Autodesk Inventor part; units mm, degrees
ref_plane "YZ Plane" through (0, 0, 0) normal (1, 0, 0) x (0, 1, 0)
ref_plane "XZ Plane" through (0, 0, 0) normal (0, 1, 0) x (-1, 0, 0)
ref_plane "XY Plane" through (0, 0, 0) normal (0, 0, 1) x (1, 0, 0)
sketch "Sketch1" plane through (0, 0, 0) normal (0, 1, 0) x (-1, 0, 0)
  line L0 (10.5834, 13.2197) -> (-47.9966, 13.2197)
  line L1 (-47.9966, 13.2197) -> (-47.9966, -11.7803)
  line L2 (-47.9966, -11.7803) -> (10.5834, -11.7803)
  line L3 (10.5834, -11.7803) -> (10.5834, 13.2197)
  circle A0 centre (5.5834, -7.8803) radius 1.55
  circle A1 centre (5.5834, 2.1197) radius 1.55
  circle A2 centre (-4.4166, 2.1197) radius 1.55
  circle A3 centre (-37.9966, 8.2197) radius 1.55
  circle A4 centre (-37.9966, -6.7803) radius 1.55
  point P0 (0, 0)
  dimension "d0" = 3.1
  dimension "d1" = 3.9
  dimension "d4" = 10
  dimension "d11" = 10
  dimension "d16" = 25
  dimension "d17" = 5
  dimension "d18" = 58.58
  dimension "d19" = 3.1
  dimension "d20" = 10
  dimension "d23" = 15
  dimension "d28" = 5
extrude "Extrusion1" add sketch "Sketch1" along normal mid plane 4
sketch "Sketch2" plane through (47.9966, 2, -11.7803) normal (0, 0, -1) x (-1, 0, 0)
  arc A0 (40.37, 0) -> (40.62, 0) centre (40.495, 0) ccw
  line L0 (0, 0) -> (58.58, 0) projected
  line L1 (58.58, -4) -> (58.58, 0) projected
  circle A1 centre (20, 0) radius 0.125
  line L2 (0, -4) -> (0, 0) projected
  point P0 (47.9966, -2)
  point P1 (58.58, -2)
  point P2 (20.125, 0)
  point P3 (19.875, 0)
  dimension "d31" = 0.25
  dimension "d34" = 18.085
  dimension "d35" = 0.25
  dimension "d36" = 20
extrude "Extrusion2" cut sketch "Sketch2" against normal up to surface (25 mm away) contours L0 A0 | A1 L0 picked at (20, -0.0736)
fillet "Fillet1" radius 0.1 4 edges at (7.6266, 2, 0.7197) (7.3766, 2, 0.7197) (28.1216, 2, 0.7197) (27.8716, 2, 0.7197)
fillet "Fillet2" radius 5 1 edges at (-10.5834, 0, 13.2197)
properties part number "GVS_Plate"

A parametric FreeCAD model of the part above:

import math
import FreeCAD as App
import Part
import Sketcher
from FreeCAD import Vector


def edges_at(feature, points):
    """Names of the edges that pass closest to the given points."""
    edges = feature.Shape.Edges
    near = lambda p: min(range(len(edges)), key=lambda i: edges[i].distToShape(Part.Vertex(*p))[0])
    return sorted({f"Edge{near(p) + 1}" for p in points})

doc = App.newDocument("Part")
body = doc.addObject("PartDesign::Body", "Body")

sketch1 = body.newObject("Sketcher::SketchObject", "Sketch")
sketch1.AttachmentSupport = (doc.getObject("XZ_Plane"), [""])
sketch1.MapMode = "FlatFace"
sketch1.addGeometry(Part.LineSegment(Vector(-10.6, -11.8, 0), Vector(-10.6, 13.2, 0)), False)
sketch1.addGeometry(Part.LineSegment(Vector(-10.6, 13.2, 0), Vector(48, 13.2, 0)), False)
sketch1.addGeometry(Part.LineSegment(Vector(48, 13.2, 0), Vector(48, -11.8, 0)), False)
sketch1.addGeometry(Part.LineSegment(Vector(48, -11.8, 0), Vector(-10.6, -11.8, 0)), False)
sketch1.addGeometry(Part.Circle(Vector(38, -6.8, 0), Vector(0, 0, 1), 1.6), False)
sketch1.addGeometry(Part.Circle(Vector(-5.6, -7.9, 0), Vector(0, 0, 1), 1.6), False)
sketch1.addGeometry(Part.Circle(Vector(38, 8.2, 0), Vector(0, 0, 1), 1.6), False)
sketch1.addGeometry(Part.Circle(Vector(4.4, 2.1, 0), Vector(0, 0, 1), 1.6), False)
sketch1.addGeometry(Part.Circle(Vector(-5.6, 2.1, 0), Vector(0, 0, 1), 1.6), False)
sketch1.addConstraint(Sketcher.Constraint("Coincident", 0, 2, 1, 1))
sketch1.addConstraint(Sketcher.Constraint("Coincident", 1, 2, 2, 1))
sketch1.addConstraint(Sketcher.Constraint("Coincident", 2, 2, 3, 1))
sketch1.addConstraint(Sketcher.Constraint("Coincident", 3, 2, 0, 1))
sketch1.addConstraint(Sketcher.Constraint("Vertical", 0))
sketch1.addConstraint(Sketcher.Constraint("Horizontal", 1))
sketch1.addConstraint(Sketcher.Constraint("Vertical", 2))
sketch1.addConstraint(Sketcher.Constraint("Horizontal", 3))
sketch1.addConstraint(Sketcher.Constraint("Equal", 4, 5))
sketch1.addConstraint(Sketcher.Constraint("Equal", 5, 6))
sketch1.addConstraint(Sketcher.Constraint("Equal", 6, 7))
sketch1.addConstraint(Sketcher.Constraint("Equal", 7, 8))
sketch1.addConstraint(Sketcher.Constraint("Horizontal", 7, 3, 8, 3))
sketch1.addConstraint(Sketcher.Constraint("Vertical", 4, 3, 6, 3))
sketch1.addConstraint(Sketcher.Constraint("Vertical", 5, 3, 8, 3))
sketch1.addConstraint(Sketcher.Constraint("Diameter", 4, 3.1))
sketch1.addConstraint(Sketcher.Constraint("DistanceY", 0, 1, 0, 2, 25.0))
sketch1.addConstraint(Sketcher.Constraint("DistanceY", 4, 3, 6, 3, 15.0))
sketch1.addConstraint(Sketcher.Constraint("DistanceX", 5, 3, 7, 3, 10.0))
sketch1.addConstraint(Sketcher.Constraint("DistanceY", 5, 3, 7, 3, 10.0))
sketch1.addConstraint(Sketcher.Constraint("DistanceX", 0, 2, 8, 3, 5.0))
sketch1.addConstraint(Sketcher.Constraint("DistanceY", 6, 3, 0, 2, 5.0))
sketch1.addConstraint(Sketcher.Constraint("DistanceX", 6, 3, 1, 2, 10.0))
sketch1.addConstraint(Sketcher.Constraint("DistanceX", 1, 1, 1, 2, 58.58))
sketch1.addConstraint(Sketcher.Constraint("DistanceY", 2, 2, 5, 3, 3.9))
sketch1.addConstraint(Sketcher.Constraint("DistanceX", -1, 1, 4, 3, 37.9966))
sketch1.addConstraint(Sketcher.Constraint("DistanceY", 4, 3, -1, 1, 6.7803))
pad1 = body.newObject("PartDesign::Pad", "Pad")
pad1.Profile = sketch1
pad1.Length = 4
pad1.Midplane = True

sketch2 = body.newObject("Sketcher::SketchObject", "Sketch001")
sketch2.AttachmentSupport = (doc.getObject("XY_Plane"), [""])
sketch2.MapMode = "FlatFace"
sketch2.AttachmentOffset = App.Placement(Vector(0, 0, -11.7803), App.Rotation())
sketch2.addGeometry(Part.LineSegment(Vector(7.38, 2, 0), Vector(7.63, 2, 0)), False)
sketch2.addGeometry(Part.ArcOfCircle(Part.Circle(Vector(7.5, 2, 0), Vector(0, 0, 1), 0.12), math.radians(180), math.radians(360)), False)
sketch2.addGeometry(Part.ArcOfCircle(Part.Circle(Vector(28, 2, 0), Vector(0, 0, 1), 0.12), math.radians(180), math.radians(360)), False)
sketch2.addGeometry(Part.LineSegment(Vector(27.87, 2, 0), Vector(28.12, 2, 0)), False)
sketch2.addConstraint(Sketcher.Constraint("Coincident", 0, 1, 1, 1))
sketch2.addConstraint(Sketcher.Constraint("Coincident", 1, 2, 0, 2))
sketch2.addConstraint(Sketcher.Constraint("Coincident", 2, 1, 3, 1))
sketch2.addConstraint(Sketcher.Constraint("Coincident", 3, 2, 2, 2))
sketch2.addConstraint(Sketcher.Constraint("Horizontal", 0))
sketch2.addConstraint(Sketcher.Constraint("Horizontal", 3))
sketch2.addConstraint(Sketcher.Constraint("Equal", 1, 2))
sketch2.addConstraint(Sketcher.Constraint("Horizontal", 1, 3, 2, 3))
sketch2.addConstraint(Sketcher.Constraint("Horizontal", 2, 3, 0, 1))
sketch2.addConstraint(Sketcher.Constraint("Horizontal", 1, 2, 2, 1))
sketch2.addConstraint(Sketcher.Constraint("Radius", 1, 0.125))
sketch2.addConstraint(Sketcher.Constraint("DistanceY", -1, 1, 1, 3, 2.0))
sketch2.addConstraint(Sketcher.Constraint("DistanceX", 0, 1, 2, 3, 20.62))
sketch2.addConstraint(Sketcher.Constraint("DistanceX", -1, 1, 1, 3, 7.5016))
pocket1 = body.newObject("PartDesign::Pocket", "Pocket")
pocket1.Profile = sketch2
pocket1.Length = 25
pocket1.Reversed = True
doc.recompute()

fillet = body.newObject("PartDesign::Fillet", "Fillet")
fillet.Base = (pocket1, edges_at(pocket1, [
    (7.627, 2, 0.72),
    (7.377, 2, 0.72),
    (28.122, 2, 0.72),
    (27.872, 2, 0.72),
]))
fillet.Radius = 0.1
doc.recompute()

fillet2 = body.newObject("PartDesign::Fillet", "Fillet001")
fillet2.Base = (fillet, edges_at(fillet, [(-10.583, 0, 13.22)]))
fillet2.Radius = 5

doc.recompute()
